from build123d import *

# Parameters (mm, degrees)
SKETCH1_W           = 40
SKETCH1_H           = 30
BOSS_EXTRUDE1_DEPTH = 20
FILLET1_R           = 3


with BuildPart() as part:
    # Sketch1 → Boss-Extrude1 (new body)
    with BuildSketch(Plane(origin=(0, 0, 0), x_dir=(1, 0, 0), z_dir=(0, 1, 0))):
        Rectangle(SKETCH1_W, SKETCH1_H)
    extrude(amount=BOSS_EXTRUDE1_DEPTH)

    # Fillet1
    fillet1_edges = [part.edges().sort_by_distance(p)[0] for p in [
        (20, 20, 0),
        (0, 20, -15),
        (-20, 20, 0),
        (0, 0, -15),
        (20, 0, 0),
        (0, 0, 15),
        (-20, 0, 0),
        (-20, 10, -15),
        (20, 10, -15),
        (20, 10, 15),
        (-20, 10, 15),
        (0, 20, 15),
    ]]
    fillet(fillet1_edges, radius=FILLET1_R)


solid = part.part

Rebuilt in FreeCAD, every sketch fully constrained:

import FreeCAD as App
import Part
import Sketcher

V = App.Vector


def add_polygon(sketch, points):
    """Adds a closed chain of lines whose ends are joined by coincident constraints."""
    first, n = sketch.GeometryCount, len(points)
    for a, b in zip(points, points[1:] + points[:1]):
        sketch.addGeometry(Part.LineSegment(App.Vector(*a, 0), App.Vector(*b, 0)), False)
    for i in range(n):
        sketch.addConstraint(Sketcher.Constraint("Coincident", first + i, 2, first + (i + 1) % n, 1))

doc = App.newDocument("Part")
params = doc.addObject("Spreadsheet::Sheet", "Params")
for row, (alias, value) in enumerate([
    ("sketch1_width", "40 mm"),
    ("sketch1_height", "30 mm"),
    ("pad1_length", "20 mm"),
    ("fillet_radius", "3 mm"),
], start=1):
    params.set(f"A{row}", alias)
    params.set(f"B{row}", "=" + value)
    params.setAlias(f"B{row}", alias)

body = doc.addObject("PartDesign::Body", "Body")

# Sketch on XZ plane
sketch1 = body.newObject("Sketcher::SketchObject", "Sketch")
sketch1.AttachmentSupport = (doc.getObject("XZ_Plane"), [""])
sketch1.MapMode = "FlatFace"
add_polygon(sketch1, [(-20, -15), (-20, 15), (20, 15), (20, -15)])  # lines 0-3
sketch1.addConstraint(Sketcher.Constraint("Vertical", 0))
sketch1.addConstraint(Sketcher.Constraint("Horizontal", 1))
sketch1.addConstraint(Sketcher.Constraint("Vertical", 2))
sketch1.addConstraint(Sketcher.Constraint("Horizontal", 3))
sketch1.addConstraint(Sketcher.Constraint("Symmetric", 0, 2, 2, 2, -1, 1))
sketch1.addConstraint(Sketcher.Constraint("DistanceX", 1, 1, 1, 2, 40.0))
sketch1.addConstraint(Sketcher.Constraint("DistanceY", 0, 1, 0, 2, 30.0))
sketch1.setExpression("Constraints[9]", "Params.sketch1_width")
sketch1.setExpression("Constraints[10]", "Params.sketch1_height")
pad1 = body.newObject("PartDesign::Pad", "Pad")
pad1.Profile = sketch1
pad1.setExpression("Length", "Params.pad1_length")
pad1.Reversed = True
doc.recompute()

fillet = body.newObject("PartDesign::Fillet", "Fillet")
fillet.Base = (pad1, ["Edge1"])
fillet.UseAllEdges = True
fillet.setExpression("Radius", "Params.fillet_radius")

doc.recompute()
